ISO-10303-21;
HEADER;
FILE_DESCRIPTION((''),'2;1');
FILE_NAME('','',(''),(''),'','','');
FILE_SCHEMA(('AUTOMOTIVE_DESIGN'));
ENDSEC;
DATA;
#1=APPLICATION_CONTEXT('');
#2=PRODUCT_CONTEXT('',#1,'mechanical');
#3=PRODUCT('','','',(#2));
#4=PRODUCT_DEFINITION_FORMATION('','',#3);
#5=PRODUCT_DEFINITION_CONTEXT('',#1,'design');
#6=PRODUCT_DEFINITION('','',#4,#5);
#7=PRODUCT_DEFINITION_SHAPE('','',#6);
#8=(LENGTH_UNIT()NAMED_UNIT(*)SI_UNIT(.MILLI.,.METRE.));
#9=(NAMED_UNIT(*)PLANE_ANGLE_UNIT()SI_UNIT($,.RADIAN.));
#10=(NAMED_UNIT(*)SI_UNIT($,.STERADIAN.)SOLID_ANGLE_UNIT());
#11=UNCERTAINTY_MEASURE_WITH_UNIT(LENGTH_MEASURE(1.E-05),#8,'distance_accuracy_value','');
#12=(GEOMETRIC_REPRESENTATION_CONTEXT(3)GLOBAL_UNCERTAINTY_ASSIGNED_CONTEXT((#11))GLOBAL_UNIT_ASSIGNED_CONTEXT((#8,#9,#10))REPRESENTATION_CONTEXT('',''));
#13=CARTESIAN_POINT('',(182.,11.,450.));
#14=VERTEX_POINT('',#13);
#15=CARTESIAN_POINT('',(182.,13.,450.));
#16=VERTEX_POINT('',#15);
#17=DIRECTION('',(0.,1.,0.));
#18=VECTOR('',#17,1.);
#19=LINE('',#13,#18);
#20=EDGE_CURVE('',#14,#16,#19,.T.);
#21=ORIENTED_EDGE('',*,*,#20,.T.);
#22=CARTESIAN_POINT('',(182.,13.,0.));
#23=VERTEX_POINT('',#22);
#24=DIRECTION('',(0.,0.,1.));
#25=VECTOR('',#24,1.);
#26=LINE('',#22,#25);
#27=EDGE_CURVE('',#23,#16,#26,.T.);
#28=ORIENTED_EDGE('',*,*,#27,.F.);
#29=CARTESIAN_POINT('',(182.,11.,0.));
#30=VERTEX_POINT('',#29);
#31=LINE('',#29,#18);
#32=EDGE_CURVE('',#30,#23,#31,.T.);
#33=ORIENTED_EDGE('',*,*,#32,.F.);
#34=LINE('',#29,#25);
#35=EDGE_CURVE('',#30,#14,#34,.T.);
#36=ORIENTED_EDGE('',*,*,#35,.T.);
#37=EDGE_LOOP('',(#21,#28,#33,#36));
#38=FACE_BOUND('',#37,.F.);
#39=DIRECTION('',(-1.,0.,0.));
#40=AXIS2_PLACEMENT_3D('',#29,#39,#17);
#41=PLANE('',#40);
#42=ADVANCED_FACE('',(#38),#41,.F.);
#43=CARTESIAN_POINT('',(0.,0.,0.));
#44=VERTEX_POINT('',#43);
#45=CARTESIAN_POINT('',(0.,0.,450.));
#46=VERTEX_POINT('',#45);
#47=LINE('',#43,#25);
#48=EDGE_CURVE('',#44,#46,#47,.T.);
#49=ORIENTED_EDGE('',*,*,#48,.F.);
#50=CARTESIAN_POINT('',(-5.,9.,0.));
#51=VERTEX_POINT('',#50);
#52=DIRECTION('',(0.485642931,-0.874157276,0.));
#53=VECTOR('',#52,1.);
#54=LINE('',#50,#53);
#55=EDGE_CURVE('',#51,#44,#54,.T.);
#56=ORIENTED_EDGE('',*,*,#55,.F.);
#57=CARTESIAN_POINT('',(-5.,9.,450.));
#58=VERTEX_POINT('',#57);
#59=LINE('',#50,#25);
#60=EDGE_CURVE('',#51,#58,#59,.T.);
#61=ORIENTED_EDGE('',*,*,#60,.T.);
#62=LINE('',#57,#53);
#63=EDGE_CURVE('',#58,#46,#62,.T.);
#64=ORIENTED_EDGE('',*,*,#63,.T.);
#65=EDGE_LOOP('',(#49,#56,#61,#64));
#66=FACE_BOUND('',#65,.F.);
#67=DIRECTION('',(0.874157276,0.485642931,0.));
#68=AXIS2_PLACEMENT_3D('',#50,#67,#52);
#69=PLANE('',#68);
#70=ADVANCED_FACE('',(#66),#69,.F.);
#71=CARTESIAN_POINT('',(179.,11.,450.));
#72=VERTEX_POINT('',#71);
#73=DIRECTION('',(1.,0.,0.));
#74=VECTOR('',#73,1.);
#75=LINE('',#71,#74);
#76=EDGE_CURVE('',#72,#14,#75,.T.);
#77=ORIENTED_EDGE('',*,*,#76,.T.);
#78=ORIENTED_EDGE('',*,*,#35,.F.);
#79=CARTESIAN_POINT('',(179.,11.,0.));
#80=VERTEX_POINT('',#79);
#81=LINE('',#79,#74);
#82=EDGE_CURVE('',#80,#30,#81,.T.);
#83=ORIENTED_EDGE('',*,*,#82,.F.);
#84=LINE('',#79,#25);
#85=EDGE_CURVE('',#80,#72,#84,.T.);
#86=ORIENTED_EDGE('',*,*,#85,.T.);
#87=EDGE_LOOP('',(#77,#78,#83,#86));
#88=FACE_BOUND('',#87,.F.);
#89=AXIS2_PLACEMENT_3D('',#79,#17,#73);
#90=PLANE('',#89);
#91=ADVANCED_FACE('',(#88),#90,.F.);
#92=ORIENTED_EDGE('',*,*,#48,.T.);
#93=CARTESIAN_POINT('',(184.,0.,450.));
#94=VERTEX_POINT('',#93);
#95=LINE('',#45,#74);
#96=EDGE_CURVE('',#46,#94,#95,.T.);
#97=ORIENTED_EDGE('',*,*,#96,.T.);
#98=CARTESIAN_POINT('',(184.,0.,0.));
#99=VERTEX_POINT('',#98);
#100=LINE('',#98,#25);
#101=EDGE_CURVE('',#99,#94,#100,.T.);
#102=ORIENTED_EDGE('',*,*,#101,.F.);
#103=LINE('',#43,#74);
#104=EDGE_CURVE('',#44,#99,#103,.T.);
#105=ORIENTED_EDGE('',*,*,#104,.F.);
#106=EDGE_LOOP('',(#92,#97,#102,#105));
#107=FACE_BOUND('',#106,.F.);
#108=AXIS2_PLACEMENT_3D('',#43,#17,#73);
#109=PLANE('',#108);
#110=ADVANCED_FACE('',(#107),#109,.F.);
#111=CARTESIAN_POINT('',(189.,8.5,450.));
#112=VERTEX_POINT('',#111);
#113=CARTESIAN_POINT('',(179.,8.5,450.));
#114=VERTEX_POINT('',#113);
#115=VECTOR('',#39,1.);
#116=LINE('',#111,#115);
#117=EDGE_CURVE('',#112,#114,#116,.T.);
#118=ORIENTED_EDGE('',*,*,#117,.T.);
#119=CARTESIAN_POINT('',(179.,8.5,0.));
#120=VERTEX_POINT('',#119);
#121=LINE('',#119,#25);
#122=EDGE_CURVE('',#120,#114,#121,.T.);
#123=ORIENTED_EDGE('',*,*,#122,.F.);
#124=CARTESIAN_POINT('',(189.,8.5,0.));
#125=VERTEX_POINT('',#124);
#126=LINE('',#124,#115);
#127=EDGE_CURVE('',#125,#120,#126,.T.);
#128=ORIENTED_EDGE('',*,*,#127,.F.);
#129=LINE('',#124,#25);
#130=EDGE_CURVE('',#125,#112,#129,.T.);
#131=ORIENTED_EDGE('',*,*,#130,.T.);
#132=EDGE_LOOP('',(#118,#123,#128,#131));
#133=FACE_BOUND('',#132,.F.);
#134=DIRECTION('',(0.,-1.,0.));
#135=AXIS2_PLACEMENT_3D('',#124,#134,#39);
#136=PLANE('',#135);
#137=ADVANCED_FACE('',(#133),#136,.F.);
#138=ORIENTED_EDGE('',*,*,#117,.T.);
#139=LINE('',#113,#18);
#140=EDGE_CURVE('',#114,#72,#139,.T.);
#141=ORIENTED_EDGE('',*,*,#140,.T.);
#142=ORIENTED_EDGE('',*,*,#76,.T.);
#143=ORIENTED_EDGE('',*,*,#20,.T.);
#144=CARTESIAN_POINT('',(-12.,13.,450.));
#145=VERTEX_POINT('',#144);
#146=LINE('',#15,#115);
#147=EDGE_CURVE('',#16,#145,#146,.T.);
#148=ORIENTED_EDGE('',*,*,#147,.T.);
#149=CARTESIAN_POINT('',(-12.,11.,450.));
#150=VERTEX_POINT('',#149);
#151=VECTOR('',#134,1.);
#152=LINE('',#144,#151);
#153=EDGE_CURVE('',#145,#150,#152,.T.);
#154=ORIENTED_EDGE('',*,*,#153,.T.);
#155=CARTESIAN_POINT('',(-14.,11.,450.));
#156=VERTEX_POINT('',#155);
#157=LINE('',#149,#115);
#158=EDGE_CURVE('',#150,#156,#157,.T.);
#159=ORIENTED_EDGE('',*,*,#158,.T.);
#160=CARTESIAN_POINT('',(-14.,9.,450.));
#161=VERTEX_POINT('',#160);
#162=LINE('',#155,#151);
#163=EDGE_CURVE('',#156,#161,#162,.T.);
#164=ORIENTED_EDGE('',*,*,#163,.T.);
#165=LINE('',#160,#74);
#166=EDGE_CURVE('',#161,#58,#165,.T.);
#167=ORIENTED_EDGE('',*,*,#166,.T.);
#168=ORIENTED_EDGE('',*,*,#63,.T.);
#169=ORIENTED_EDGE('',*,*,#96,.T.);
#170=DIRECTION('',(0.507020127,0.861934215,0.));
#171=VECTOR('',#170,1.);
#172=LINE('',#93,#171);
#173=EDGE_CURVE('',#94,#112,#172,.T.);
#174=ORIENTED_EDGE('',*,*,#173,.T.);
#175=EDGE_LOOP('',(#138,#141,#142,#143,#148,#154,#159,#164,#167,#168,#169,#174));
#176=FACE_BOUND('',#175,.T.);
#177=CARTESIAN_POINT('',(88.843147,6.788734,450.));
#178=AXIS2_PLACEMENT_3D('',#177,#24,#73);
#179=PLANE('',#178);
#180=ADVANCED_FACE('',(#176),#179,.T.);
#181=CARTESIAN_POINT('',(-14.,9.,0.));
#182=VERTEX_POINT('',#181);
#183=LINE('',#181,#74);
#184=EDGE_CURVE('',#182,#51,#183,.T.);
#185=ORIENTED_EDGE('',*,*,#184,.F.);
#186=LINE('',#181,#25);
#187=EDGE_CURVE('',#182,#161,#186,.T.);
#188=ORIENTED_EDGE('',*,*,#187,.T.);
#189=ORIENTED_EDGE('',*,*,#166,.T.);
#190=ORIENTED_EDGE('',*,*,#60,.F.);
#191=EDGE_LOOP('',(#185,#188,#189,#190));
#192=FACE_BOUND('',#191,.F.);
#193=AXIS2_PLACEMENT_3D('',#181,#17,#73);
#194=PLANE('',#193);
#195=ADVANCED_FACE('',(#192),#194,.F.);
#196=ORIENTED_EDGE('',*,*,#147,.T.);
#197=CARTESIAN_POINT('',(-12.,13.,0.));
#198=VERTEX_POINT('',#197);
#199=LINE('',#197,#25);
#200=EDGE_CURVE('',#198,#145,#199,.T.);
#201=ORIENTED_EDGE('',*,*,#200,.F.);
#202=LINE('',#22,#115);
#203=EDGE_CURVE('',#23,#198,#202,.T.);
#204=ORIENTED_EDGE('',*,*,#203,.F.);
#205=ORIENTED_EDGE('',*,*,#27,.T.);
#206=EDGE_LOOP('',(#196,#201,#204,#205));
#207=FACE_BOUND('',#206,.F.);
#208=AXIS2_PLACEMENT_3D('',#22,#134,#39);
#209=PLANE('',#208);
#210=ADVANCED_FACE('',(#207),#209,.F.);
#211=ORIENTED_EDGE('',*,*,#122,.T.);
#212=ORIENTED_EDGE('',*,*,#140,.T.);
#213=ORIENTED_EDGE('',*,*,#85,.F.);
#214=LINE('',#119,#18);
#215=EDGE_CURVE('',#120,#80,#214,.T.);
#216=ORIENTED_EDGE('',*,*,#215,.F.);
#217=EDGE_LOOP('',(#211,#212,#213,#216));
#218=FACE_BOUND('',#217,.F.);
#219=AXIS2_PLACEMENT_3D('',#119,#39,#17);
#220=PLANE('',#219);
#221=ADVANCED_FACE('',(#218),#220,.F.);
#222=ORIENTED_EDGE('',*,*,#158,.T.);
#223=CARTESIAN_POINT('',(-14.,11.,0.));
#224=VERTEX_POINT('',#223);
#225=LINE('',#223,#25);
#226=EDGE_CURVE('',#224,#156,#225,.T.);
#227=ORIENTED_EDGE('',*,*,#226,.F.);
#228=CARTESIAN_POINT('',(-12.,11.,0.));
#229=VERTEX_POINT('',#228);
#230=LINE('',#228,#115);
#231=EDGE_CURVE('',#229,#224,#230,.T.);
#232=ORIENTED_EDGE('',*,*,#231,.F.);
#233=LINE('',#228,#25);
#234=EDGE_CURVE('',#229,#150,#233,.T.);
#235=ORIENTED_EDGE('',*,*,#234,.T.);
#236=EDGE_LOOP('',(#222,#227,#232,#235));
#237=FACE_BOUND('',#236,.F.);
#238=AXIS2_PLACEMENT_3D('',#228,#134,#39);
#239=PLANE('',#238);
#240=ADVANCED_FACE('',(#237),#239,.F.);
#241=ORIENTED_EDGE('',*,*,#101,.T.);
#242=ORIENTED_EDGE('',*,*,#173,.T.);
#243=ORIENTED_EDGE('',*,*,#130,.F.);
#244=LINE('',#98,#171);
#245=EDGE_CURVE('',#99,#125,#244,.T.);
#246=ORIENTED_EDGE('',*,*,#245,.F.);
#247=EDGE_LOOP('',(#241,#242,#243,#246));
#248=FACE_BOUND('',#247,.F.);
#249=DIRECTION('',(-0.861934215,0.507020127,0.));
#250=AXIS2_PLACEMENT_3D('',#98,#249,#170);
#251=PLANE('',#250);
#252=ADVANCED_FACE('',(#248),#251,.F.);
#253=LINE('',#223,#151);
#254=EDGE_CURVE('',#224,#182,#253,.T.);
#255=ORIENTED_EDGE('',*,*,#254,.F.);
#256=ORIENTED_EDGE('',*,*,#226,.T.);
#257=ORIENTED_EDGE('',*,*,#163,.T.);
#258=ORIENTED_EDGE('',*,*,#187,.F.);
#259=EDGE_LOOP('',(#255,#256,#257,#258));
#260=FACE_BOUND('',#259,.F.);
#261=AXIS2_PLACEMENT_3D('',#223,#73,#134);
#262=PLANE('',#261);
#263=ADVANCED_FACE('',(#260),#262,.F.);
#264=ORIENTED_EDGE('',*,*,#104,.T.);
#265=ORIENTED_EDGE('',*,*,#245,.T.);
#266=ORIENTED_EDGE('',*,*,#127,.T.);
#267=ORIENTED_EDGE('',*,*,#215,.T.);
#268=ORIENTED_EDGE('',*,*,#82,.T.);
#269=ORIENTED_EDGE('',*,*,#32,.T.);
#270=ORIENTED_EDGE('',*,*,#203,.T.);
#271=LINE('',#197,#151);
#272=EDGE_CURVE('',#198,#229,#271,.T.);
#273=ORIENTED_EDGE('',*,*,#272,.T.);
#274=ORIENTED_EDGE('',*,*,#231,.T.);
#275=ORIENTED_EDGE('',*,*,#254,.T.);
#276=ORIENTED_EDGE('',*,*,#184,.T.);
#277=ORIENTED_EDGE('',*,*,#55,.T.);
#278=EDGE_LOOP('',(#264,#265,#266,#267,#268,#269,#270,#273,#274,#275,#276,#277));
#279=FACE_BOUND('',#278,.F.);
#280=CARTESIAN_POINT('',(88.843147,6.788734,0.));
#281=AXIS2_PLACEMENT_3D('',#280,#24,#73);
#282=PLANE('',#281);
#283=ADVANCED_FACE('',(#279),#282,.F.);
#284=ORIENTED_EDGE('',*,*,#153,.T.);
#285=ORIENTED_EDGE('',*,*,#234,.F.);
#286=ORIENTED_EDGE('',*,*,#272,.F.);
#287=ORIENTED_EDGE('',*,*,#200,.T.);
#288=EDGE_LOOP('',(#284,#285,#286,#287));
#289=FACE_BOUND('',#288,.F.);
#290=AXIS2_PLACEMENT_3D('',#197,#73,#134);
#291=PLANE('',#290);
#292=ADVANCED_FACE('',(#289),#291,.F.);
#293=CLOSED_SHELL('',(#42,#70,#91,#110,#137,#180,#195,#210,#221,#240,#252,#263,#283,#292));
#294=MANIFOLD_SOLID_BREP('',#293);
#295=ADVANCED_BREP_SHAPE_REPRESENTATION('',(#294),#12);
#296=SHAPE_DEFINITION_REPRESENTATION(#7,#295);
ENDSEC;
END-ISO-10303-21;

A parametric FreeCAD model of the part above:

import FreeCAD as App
import Part
import Sketcher
from FreeCAD import Vector
Q = App.Units.Quantity

doc = App.newDocument("Part")
body = doc.addObject("PartDesign::Body", "Body")

# Sketch on XY plane
sketch1 = body.newObject("Sketcher::SketchObject", "Sketch")
sketch1.AttachmentSupport = (doc.getObject("XY_Plane"), [""])
sketch1.MapMode = "FlatFace"
sketch1.addGeometry([
    Part.LineSegment(Vector(0, 0, 0), Vector(184, 0, 0)),  # 0
    Part.LineSegment(Vector(184, 0, 0), Vector(189, 8.5, 0)),  # 1
    Part.LineSegment(Vector(189, 8.5, 0), Vector(179, 8.5, 0)),  # 2
    Part.LineSegment(Vector(179, 8.5, 0), Vector(179, 11, 0)),  # 3
    Part.LineSegment(Vector(179, 11, 0), Vector(182, 11, 0)),  # 4
    Part.LineSegment(Vector(182, 11, 0), Vector(182, 13, 0)),  # 5
    Part.LineSegment(Vector(182, 13, 0), Vector(-12, 13, 0)),  # 6
    Part.LineSegment(Vector(-12, 13, 0), Vector(-12, 11, 0)),  # 7
    Part.LineSegment(Vector(-12, 11, 0), Vector(-14, 11, 0)),  # 8
    Part.LineSegment(Vector(-14, 11, 0), Vector(-14, 9, 0)),  # 9
    Part.LineSegment(Vector(-14, 9, 0), Vector(-5, 9, 0)),  # 10
    Part.LineSegment(Vector(-5, 9, 0), Vector(0, 0, 0)),  # 11
], False)
sketch1.addConstraint([
    Sketcher.Constraint("Coincident", 0, 2, 1, 1),
    Sketcher.Constraint("Coincident", 1, 2, 2, 1),
    Sketcher.Constraint("Coincident", 2, 2, 3, 1),
    Sketcher.Constraint("Coincident", 3, 2, 4, 1),
    Sketcher.Constraint("Coincident", 4, 2, 5, 1),
    Sketcher.Constraint("Coincident", 5, 2, 6, 1),
    Sketcher.Constraint("Coincident", 6, 2, 7, 1),
    Sketcher.Constraint("Coincident", 7, 2, 8, 1),
    Sketcher.Constraint("Coincident", 8, 2, 9, 1),
    Sketcher.Constraint("Coincident", 9, 2, 10, 1),
    Sketcher.Constraint("Coincident", 10, 2, 11, 1),
    Sketcher.Constraint("Coincident", 11, 2, 0, 1),
    Sketcher.Constraint("Horizontal", 0),
    Sketcher.Constraint("Horizontal", 2),
    Sketcher.Constraint("Vertical", 3),
    Sketcher.Constraint("Horizontal", 4),
    Sketcher.Constraint("Vertical", 5),
    Sketcher.Constraint("Horizontal", 6),
    Sketcher.Constraint("Vertical", 7),
    Sketcher.Constraint("Horizontal", 8),
    Sketcher.Constraint("Vertical", 9),
    Sketcher.Constraint("Horizontal", 10),
    Sketcher.Constraint("Coincident", 11, 2, -1, 1),
    Sketcher.Constraint("Horizontal", 4, 2, 7, 2),
    Sketcher.Constraint("Equal", 8, 5),
    Sketcher.Constraint("Equal", 7, 9),
    Sketcher.Constraint("DistanceX", 0, 1, 0, 2, Q("184 mm")),
    Sketcher.Constraint("DistanceX", 2, 2, 2, 1, Q("10 mm")),
    Sketcher.Constraint("DistanceX", 4, 1, 4, 2, Q("3 mm")),
    Sketcher.Constraint("DistanceX", 6, 2, 6, 1, Q("194 mm")),
    Sketcher.Constraint("DistanceX", 8, 2, 8, 1, Q("2 mm")),
    Sketcher.Constraint("DistanceX", 10, 1, 10, 2, Q("9 mm")),
    Sketcher.Constraint("DistanceY", 3, 1, 3, 2, Q("2.5 mm")),
    Sketcher.Constraint("DistanceX", -1, 1, 1, 2, Q("189 mm")),
    Sketcher.Constraint("DistanceY", -1, 1, 3, 2, Q("11 mm")),
])
pad1 = body.newObject("PartDesign::Pad", "Pad")
pad1.Profile = sketch1
pad1.Length = 450

doc.recompute()
